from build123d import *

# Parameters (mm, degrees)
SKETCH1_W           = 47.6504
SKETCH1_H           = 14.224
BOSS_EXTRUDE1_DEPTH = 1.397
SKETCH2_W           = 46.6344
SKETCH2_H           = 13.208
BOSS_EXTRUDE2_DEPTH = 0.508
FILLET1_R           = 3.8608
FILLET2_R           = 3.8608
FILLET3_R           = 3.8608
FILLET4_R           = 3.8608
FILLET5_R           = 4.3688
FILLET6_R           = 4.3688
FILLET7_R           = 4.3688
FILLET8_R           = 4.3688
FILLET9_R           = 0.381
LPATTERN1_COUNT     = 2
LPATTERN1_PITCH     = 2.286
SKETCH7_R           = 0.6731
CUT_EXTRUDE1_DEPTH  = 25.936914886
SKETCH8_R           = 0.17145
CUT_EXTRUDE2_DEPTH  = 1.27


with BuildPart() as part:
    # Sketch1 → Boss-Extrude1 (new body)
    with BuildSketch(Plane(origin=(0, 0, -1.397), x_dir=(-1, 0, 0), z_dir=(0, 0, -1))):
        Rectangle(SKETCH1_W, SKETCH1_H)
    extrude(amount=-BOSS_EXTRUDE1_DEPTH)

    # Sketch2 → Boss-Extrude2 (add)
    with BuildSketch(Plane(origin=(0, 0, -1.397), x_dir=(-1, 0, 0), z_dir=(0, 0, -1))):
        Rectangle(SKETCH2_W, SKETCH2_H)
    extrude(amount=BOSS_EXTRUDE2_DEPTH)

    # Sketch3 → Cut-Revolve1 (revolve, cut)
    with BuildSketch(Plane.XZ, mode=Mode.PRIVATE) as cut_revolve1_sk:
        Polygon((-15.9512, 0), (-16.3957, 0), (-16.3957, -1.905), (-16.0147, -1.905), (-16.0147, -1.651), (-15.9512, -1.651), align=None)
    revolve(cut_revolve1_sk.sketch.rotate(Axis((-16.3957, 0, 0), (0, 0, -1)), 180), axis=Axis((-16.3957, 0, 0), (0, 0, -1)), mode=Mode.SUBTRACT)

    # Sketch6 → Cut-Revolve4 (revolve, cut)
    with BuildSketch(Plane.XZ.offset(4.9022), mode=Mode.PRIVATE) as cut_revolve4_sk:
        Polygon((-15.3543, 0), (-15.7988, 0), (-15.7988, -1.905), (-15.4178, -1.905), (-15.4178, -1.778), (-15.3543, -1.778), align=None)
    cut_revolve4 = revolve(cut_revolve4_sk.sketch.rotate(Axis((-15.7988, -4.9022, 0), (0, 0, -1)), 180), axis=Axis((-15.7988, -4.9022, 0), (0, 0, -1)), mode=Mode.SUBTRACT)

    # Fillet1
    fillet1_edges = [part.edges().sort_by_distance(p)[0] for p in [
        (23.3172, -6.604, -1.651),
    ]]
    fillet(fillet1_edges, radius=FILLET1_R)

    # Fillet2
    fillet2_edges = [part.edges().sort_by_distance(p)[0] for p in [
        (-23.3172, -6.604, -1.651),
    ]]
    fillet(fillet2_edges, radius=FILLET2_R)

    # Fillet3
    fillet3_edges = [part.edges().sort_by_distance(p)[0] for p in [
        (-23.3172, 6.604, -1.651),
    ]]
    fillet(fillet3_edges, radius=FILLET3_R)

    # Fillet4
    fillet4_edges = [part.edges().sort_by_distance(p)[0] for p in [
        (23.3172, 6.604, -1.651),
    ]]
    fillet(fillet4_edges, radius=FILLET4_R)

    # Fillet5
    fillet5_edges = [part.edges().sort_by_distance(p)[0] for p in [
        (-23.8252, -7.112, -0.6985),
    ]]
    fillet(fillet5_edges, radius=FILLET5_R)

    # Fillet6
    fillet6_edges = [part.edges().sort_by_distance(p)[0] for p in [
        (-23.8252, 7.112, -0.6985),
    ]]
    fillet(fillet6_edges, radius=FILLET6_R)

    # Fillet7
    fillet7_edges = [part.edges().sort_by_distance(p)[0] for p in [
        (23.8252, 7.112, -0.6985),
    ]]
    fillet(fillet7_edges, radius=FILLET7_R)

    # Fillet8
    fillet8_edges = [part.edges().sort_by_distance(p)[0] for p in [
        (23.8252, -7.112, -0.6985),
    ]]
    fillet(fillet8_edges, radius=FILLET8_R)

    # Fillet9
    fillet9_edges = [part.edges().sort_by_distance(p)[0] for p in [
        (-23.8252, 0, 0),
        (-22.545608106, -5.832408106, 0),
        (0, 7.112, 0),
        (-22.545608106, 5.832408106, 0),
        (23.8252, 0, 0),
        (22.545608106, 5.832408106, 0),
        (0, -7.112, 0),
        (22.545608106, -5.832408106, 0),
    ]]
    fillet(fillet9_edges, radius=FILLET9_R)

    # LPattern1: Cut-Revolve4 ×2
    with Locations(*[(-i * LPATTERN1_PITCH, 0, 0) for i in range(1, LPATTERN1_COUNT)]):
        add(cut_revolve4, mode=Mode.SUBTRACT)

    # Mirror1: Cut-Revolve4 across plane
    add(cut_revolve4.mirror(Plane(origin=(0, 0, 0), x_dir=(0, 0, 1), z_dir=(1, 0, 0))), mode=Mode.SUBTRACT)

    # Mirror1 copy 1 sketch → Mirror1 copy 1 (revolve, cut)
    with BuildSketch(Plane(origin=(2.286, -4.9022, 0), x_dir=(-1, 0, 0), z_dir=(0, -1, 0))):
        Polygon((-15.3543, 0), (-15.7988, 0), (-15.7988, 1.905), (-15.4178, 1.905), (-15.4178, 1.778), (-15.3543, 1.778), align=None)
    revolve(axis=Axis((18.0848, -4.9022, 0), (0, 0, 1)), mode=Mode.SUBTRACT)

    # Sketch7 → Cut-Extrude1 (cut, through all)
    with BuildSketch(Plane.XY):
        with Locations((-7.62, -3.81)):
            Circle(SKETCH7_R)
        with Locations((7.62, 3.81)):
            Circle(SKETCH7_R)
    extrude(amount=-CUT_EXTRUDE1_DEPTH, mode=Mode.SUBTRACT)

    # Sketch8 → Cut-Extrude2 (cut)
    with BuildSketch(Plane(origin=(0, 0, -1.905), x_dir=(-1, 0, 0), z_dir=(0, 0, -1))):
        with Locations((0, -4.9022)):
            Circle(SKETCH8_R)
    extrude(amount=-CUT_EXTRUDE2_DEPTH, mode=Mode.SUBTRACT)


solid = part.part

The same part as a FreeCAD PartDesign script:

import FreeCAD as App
import Part
import Sketcher
from FreeCAD import Vector
Q = App.Units.Quantity


def edges_at(feature, points):
    """Names of the edges that pass closest to the given points."""
    edges = feature.Shape.Edges
    near = lambda p: min(range(len(edges)), key=lambda i: edges[i].distToShape(Part.Vertex(*p))[0])
    return sorted({f"Edge{near(p) + 1}" for p in points})


def add_polygon(sketch, points):
    """Adds a closed chain of lines whose ends are joined by coincident constraints."""
    first, n = sketch.GeometryCount, len(points)
    for a, b in zip(points, points[1:] + points[:1]):
        sketch.addGeometry(Part.LineSegment(App.Vector(*a, 0), App.Vector(*b, 0)), False)
    for i in range(n):
        sketch.addConstraint(Sketcher.Constraint("Coincident", first + i, 2, first + (i + 1) % n, 1))

doc = App.newDocument("Part")
body = doc.addObject("PartDesign::Body", "Body")

sketch1 = doc.addObject("Sketcher::SketchObject", "Sketch")
body.addObject(sketch1)
sketch1.AttachmentSupport = (doc.XY_Plane, [""])
sketch1.MapMode = "FlatFace"
sketch1.AttachmentOffset = App.Placement(Vector(0, 0, -0.055 * 25.4), App.Rotation())
add_polygon(sketch1, [(23.8252, 7.112), (23.8252, -7.112), (-23.8252, -7.112), (-23.8252, 7.112)])
sketch1.addConstraint([
    Sketcher.Constraint("Vertical", 0),
    Sketcher.Constraint("Horizontal", 1),
    Sketcher.Constraint("Vertical", 2),
    Sketcher.Constraint("Horizontal", 3),
    Sketcher.Constraint("Symmetric", 0, 2, 2, 2, -1, 1),
    Sketcher.Constraint("DistanceY", 0, 2, 0, 1, Q("0.56 in")),
    Sketcher.Constraint("DistanceX", 1, 2, 1, 1, Q("1.876 in")),
])
pad1 = doc.addObject("PartDesign::Pad", "Pad")
body.addObject(pad1)
pad1.Profile = sketch1
pad1.Length = Q("0.055 in")

sketch2 = doc.addObject("Sketcher::SketchObject", "Sketch001")
body.addObject(sketch2)
sketch2.AttachmentSupport = (doc.XY_Plane, [""])
sketch2.MapMode = "FlatFace"
sketch2.AttachmentOffset = App.Placement(Vector(0, 0, -0.055 * 25.4), App.Rotation())
add_polygon(sketch2, [(23.3172, 6.604), (23.3172, -6.604), (-23.3172, -6.604), (-23.3172, 6.604)])
sketch2.addConstraint([
    Sketcher.Constraint("Vertical", 0),
    Sketcher.Constraint("Horizontal", 1),
    Sketcher.Constraint("Vertical", 2),
    Sketcher.Constraint("Horizontal", 3),
    Sketcher.Constraint("Symmetric", 0, 2, 2, 2, -1, 1),
    Sketcher.Constraint("DistanceY", 0, 2, 0, 1, Q("0.52 in")),
    Sketcher.Constraint("DistanceX", 1, 2, 1, 1, Q("1.836 in")),
])
pad2 = doc.addObject("PartDesign::Pad", "Pad001")
body.addObject(pad2)
pad2.Profile = sketch2
pad2.Length = Q("0.02 in")
pad2.Reversed = True

sketch3 = doc.addObject("Sketcher::SketchObject", "Sketch002")
body.addObject(sketch3)
sketch3.AttachmentSupport = (doc.XZ_Plane, [""])
sketch3.MapMode = "FlatFace"
add_polygon(sketch3, [(-15.9512, 0), (-16.3957, 0), (-16.3957, -1.905), (-16.0147, -1.905), (-16.0147, -1.651), (-15.9512, -1.651)])
sketch3.addGeometry(Part.LineSegment(Vector(-16.3957, 0, 0), Vector(-16.3957, -1.905, 0)), True)
sketch3.addConstraint([
    Sketcher.Constraint("Horizontal", 0),
    Sketcher.Constraint("Vertical", 1),
    Sketcher.Constraint("Horizontal", 2),
    Sketcher.Constraint("Vertical", 3),
    Sketcher.Constraint("Horizontal", 4),
    Sketcher.Constraint("Vertical", 5),
    Sketcher.Constraint("Vertical", 6),
    Sketcher.Constraint("Coincident", 6, 1, 0, 2),
    Sketcher.Constraint("PointOnObject", 0, 2, -1),
    Sketcher.Constraint("Horizontal", 2, 2, 6, 2),
    Sketcher.Constraint("DistanceY", 3, 1, 3, 2, Q("0.01 in")),
    Sketcher.Constraint("DistanceX", 2, 1, 2, 2, Q("0.015 in")),
    Sketcher.Constraint("DistanceY", 1, 2, 1, 1, Q("0.075 in")),
    Sketcher.Constraint("DistanceX", 0, 2, 0, 1, Q("0.0175 in")),
    Sketcher.Constraint("DistanceX", 4, 2, -1, 1, Q("0.628 in")),
])
groove = doc.addObject("PartDesign::Groove", "Groove")
body.addObject(groove)
groove.Profile = sketch3
groove.ReferenceAxis = (sketch3, ["Axis0"])
groove.Angle = 360

sketch4 = doc.addObject("Sketcher::SketchObject", "Sketch003")
body.addObject(sketch4)
sketch4.AttachmentSupport = (doc.XZ_Plane, [""])
sketch4.MapMode = "FlatFace"
sketch4.AttachmentOffset = App.Placement(Vector(0, 0, 0.193 * 25.4), App.Rotation())
add_polygon(sketch4, [(-15.3543, 0), (-15.7988, 0), (-15.7988, -1.905), (-15.4178, -1.905), (-15.4178, -1.778), (-15.3543, -1.778)])
sketch4.addGeometry(Part.LineSegment(Vector(-15.7988, 0, 0), Vector(-15.7988, -1.905, 0)), True)
sketch4.addConstraint([
    Sketcher.Constraint("Horizontal", 0),
    Sketcher.Constraint("Vertical", 1),
    Sketcher.Constraint("Horizontal", 2),
    Sketcher.Constraint("Vertical", 3),
    Sketcher.Constraint("Horizontal", 4),
    Sketcher.Constraint("Vertical", 5),
    Sketcher.Constraint("Vertical", 6),
    Sketcher.Constraint("Coincident", 6, 1, 0, 2),
    Sketcher.Constraint("PointOnObject", 0, 2, -1),
    Sketcher.Constraint("Horizontal", 2, 2, 6, 2),
    Sketcher.Constraint("DistanceY", 5, 1, 5, 2, Q("0.07 in")),
    Sketcher.Constraint("DistanceX", 2, 1, 2, 2, Q("0.015 in")),
    Sketcher.Constraint("DistanceY", 1, 2, 1, 1, Q("0.075 in")),
    Sketcher.Constraint("DistanceX", 0, 2, 0, 1, Q("0.0175 in")),
    Sketcher.Constraint("DistanceX", 0, 2, -1, 1, Q("0.622 in")),
])
groove2 = doc.addObject("PartDesign::Groove", "Groove001")
body.addObject(groove2)
groove2.Profile = sketch4
groove2.ReferenceAxis = (sketch4, ["Axis0"])
groove2.Angle = 360
doc.recompute()

fillet = doc.addObject("PartDesign::Fillet", "Fillet")
body.addObject(fillet)
fillet.Base = (groove2, edges_at(groove2, [(23.317, -6.604, -1.651)]))
fillet.Radius = Q("0.152 in")
doc.recompute()

fillet2 = doc.addObject("PartDesign::Fillet", "Fillet001")
body.addObject(fillet2)
fillet2.Base = (fillet, edges_at(fillet, [(-23.317, -6.604, -1.651)]))
fillet2.Radius = Q("0.152 in")
doc.recompute()

fillet3 = doc.addObject("PartDesign::Fillet", "Fillet002")
body.addObject(fillet3)
fillet3.Base = (fillet2, edges_at(fillet2, [(-23.317, 6.604, -1.651)]))
fillet3.Radius = Q("0.152 in")
doc.recompute()

fillet4 = doc.addObject("PartDesign::Fillet", "Fillet003")
body.addObject(fillet4)
fillet4.Base = (fillet3, edges_at(fillet3, [(23.317, 6.604, -1.651)]))
fillet4.Radius = Q("0.152 in")
doc.recompute()

fillet5 = doc.addObject("PartDesign::Fillet", "Fillet004")
body.addObject(fillet5)
fillet5.Base = (fillet4, edges_at(fillet4, [(-23.825, -7.112, -0.699)]))
fillet5.Radius = Q("0.172 in")
doc.recompute()

fillet6 = doc.addObject("PartDesign::Fillet", "Fillet005")
body.addObject(fillet6)
fillet6.Base = (fillet5, edges_at(fillet5, [(-23.825, 7.112, -0.699)]))
fillet6.Radius = Q("0.172 in")
doc.recompute()

fillet7 = doc.addObject("PartDesign::Fillet", "Fillet006")
body.addObject(fillet7)
fillet7.Base = (fillet6, edges_at(fillet6, [(23.825, 7.112, -0.699)]))
fillet7.Radius = Q("0.172 in")
doc.recompute()

fillet8 = doc.addObject("PartDesign::Fillet", "Fillet007")
body.addObject(fillet8)
fillet8.Base = (fillet7, edges_at(fillet7, [(23.825, -7.112, -0.699)]))
fillet8.Radius = Q("0.172 in")
doc.recompute()

fillet9 = doc.addObject("PartDesign::Fillet", "Fillet008")
body.addObject(fillet9)
fillet9.Base = (fillet8, edges_at(fillet8, [
    (-23.825, 0, 0),
    (-22.546, -5.832, 0),
    (0, 7.112, 0),
    (-22.546, 5.832, 0),
    (23.825, 0, 0),
    (22.546, 5.832, 0),
    (0, -7.112, 0),
    (22.546, -5.832, 0),
]))
fillet9.Radius = Q("0.015 in")
doc.recompute()

linearpattern = doc.addObject("PartDesign::LinearPattern", "LinearPattern")
body.addObject(linearpattern)
linearpattern.Originals = [groove2]
linearpattern.Direction = (doc.X_Axis, [""])
linearpattern.Mode = "offset"
linearpattern.Offset = Q("0.09 in")
linearpattern.Occurrences = 2
linearpattern.Reversed = True
body.Tip = linearpattern
doc.recompute()

mirrored = doc.addObject("PartDesign::Mirrored", "Mirrored")
body.addObject(mirrored)
mirrored.Originals = [groove2]
mirrored.MirrorPlane = (doc.YZ_Plane, [""])
body.Tip = mirrored

sketch5 = doc.addObject("Sketcher::SketchObject", "Sketch004")
body.addObject(sketch5)
sketch5.AttachmentSupport = (doc.XZ_Plane, [""])
sketch5.MapMode = "FlatFace"
sketch5.AttachmentOffset = App.Placement(Vector(0, 0, 0.193 * 25.4), App.Rotation())
add_polygon(sketch5, [(18.0848, 0), (17.6403, 0), (17.6403, -1.778), (17.7038, -1.778), (17.7038, -1.905), (18.0848, -1.905)])
sketch5.addGeometry(Part.LineSegment(Vector(18.0848, -1.905, 0), Vector(18.0848, 0, 0)), True)
sketch5.addConstraint([
    Sketcher.Constraint("Horizontal", 0),
    Sketcher.Constraint("Vertical", 1),
    Sketcher.Constraint("Horizontal", 2),
    Sketcher.Constraint("Vertical", 3),
    Sketcher.Constraint("Horizontal", 4),
    Sketcher.Constraint("Vertical", 5),
    Sketcher.Constraint("Vertical", 6),
    Sketcher.Constraint("Coincident", 6, 1, 4, 2),
    Sketcher.Constraint("PointOnObject", 0, 2, -1),
    Sketcher.Constraint("PointOnObject", 6, 2, -1),
    Sketcher.Constraint("DistanceY", 1, 2, 1, 1, Q("0.07 in")),
    Sketcher.Constraint("DistanceX", 4, 1, 4, 2, Q("0.015 in")),
    Sketcher.Constraint("DistanceY", 3, 2, 3, 1, Q("0.005 in")),
    Sketcher.Constraint("DistanceX", 0, 2, 0, 1, Q("0.0175 in")),
    Sketcher.Constraint("DistanceX", -1, 1, 2, 2, Q("0.697 in")),
])
groove3 = doc.addObject("PartDesign::Groove", "Groove002")
body.addObject(groove3)
groove3.Profile = sketch5
groove3.ReferenceAxis = (sketch5, ["Axis0"])
groove3.Angle = 360

sketch6 = doc.addObject("Sketcher::SketchObject", "Sketch005")
body.addObject(sketch6)
sketch6.AttachmentSupport = (doc.XY_Plane, [""])
sketch6.MapMode = "FlatFace"
sketch6.addGeometry([
    Part.Circle(Vector(-7.62, -3.81, 0), Vector(0, 0, 1), 0.6731),
    Part.Circle(Vector(7.62, 3.81, 0), Vector(0, 0, 1), 0.6731),
], False)
sketch6.addConstraint([
    Sketcher.Constraint("Equal", 0, 1),
    Sketcher.Constraint("Symmetric", 0, 3, 1, 3, -1, 1),
    Sketcher.Constraint("Diameter", 0, Q("0.053 in")),
    Sketcher.Constraint("DistanceX", 0, 3, -1, 1, Q("0.3 in")),
    Sketcher.Constraint("DistanceY", 0, 3, 1, 3, Q("0.3 in")),
])
pocket1 = doc.addObject("PartDesign::Pocket", "Pocket")
body.addObject(pocket1)
pocket1.Profile = sketch6
pocket1.Type = "ThroughAll"

sketch7 = doc.addObject("Sketcher::SketchObject", "Sketch006")
body.addObject(sketch7)
sketch7.AttachmentSupport = (doc.XY_Plane, [""])
sketch7.MapMode = "FlatFace"
sketch7.AttachmentOffset = App.Placement(Vector(0, 0, -0.075 * 25.4), App.Rotation())
sketch7.addGeometry(Part.Circle(Vector(0, -4.9022, 0), Vector(0, 0, 1), 0.17145), False)
sketch7.addConstraint([
    Sketcher.Constraint("PointOnObject", 0, 3, -2),
    Sketcher.Constraint("Diameter", 0, Q("0.0135 in")),
    Sketcher.Constraint("DistanceY", 0, 3, -1, 1, Q("0.193 in")),
])
pocket2 = doc.addObject("PartDesign::Pocket", "Pocket001")
body.addObject(pocket2)
pocket2.Profile = sketch7
pocket2.Length = Q("0.05 in")
pocket2.Reversed = True

doc.recompute()
